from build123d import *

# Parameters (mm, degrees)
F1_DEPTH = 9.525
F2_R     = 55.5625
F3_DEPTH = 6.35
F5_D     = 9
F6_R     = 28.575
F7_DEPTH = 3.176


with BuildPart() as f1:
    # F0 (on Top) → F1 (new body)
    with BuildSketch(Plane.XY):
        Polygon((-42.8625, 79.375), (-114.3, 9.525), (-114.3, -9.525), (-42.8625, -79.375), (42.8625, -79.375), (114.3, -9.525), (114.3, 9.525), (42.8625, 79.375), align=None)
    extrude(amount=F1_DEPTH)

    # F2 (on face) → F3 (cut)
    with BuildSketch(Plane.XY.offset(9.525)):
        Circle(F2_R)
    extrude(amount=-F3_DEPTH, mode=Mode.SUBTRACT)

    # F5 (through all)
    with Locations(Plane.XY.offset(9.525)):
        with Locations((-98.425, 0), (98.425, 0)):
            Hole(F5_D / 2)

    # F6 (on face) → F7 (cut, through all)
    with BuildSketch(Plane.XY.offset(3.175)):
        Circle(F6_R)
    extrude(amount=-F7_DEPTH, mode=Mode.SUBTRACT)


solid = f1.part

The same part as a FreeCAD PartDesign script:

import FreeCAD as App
import Part
import Sketcher
Q = App.Units.Quantity

doc = App.newDocument("Part")
body = doc.addObject("PartDesign::Body", "Body")

sketch1 = body.newObject("Sketcher::SketchObject", "Sketch")
sketch1.AttachmentSupport = (doc.getObject("XY_Plane"), [""])
sketch1.MapMode = "FlatFace"
sketch1.addGeometry([
    Part.LineSegment(App.Vector(-43, 79, 0), App.Vector(-114, 10, 0)),
    Part.LineSegment(App.Vector(-114, 10, 0), App.Vector(-114, -10, 0)),
    Part.LineSegment(App.Vector(-114, -10, 0), App.Vector(-43, -79, 0)),
    Part.LineSegment(App.Vector(-43, -79, 0), App.Vector(43, -79, 0)),
    Part.LineSegment(App.Vector(43, -79, 0), App.Vector(114, -10, 0)),
    Part.LineSegment(App.Vector(114, -10, 0), App.Vector(114, 10, 0)),
    Part.LineSegment(App.Vector(114, 10, 0), App.Vector(43, 79, 0)),
    Part.LineSegment(App.Vector(43, 79, 0), App.Vector(-43, 79, 0)),
], False)
sketch1.addConstraint([
    Sketcher.Constraint("Coincident", 0, 2, 1, 1),
    Sketcher.Constraint("Coincident", 1, 2, 2, 1),
    Sketcher.Constraint("Coincident", 2, 2, 3, 1),
    Sketcher.Constraint("Coincident", 3, 2, 4, 1),
    Sketcher.Constraint("Coincident", 4, 2, 5, 1),
    Sketcher.Constraint("Coincident", 5, 2, 6, 1),
    Sketcher.Constraint("Coincident", 6, 2, 7, 1),
    Sketcher.Constraint("Coincident", 7, 2, 0, 1),
    Sketcher.Constraint("Vertical", 1),
    Sketcher.Constraint("Horizontal", 3),
    Sketcher.Constraint("Vertical", 5),
    Sketcher.Constraint("Horizontal", 7),
    Sketcher.Constraint("Symmetric", 0, 2, 4, 2, -1, 1),
    Sketcher.Constraint("Symmetric", 2, 2, 6, 2, -1, 1),
    Sketcher.Constraint("Parallel", 0, 4),
    Sketcher.Constraint("Parallel", 2, 6),
    Sketcher.Constraint("Horizontal", 1, 2, 4, 2),
    Sketcher.Constraint("Vertical", 3, 2, 6, 2),
    Sketcher.Constraint("DistanceX", 1, 2, 4, 2, Q("9 in")),
    Sketcher.Constraint("DistanceY", 1, 2, 1, 1, Q("0.75 in")),
    Sketcher.Constraint("DistanceY", 2, 2, 0, 2, Q("3.5 in")),
    Sketcher.Constraint("DistanceX", 3, 1, 3, 2, Q("3.375 in")),
])
pad1 = body.newObject("PartDesign::Pad", "Pad")
pad1.Profile = sketch1
pad1.Length = Q("0.375 in")

sketch2 = body.newObject("Sketcher::SketchObject", "Sketch001")
sketch2.AttachmentSupport = (doc.getObject("XY_Plane"), [""])
sketch2.MapMode = "FlatFace"
sketch2.AttachmentOffset = App.Placement(App.Vector(0, 0, 0.375 * 25.4), App.Rotation())
sketch2.addGeometry(Part.Circle(App.Vector(0, 0, 0), App.Vector(0, 0, 1), 56), False)
sketch2.addConstraint([
    Sketcher.Constraint("Coincident", 0, 3, -1, 1),
    Sketcher.Constraint("Diameter", 0, Q("4.375 in")),
])
pocket1 = body.newObject("PartDesign::Pocket", "Pocket")
pocket1.Profile = sketch2
pocket1.Length = Q("0.25 in")

sketch3 = body.newObject("Sketcher::SketchObject", "Sketch002")
sketch3.AttachmentSupport = (doc.getObject("XY_Plane"), [""])
sketch3.MapMode = "FlatFace"
sketch3.AttachmentOffset = App.Placement(App.Vector(0, 0, 0.375 * 25.4), App.Rotation())
sketch3.addGeometry([
    Part.Circle(App.Vector(-98.4, 0, 0), App.Vector(0, 0, 1), 4.5),
    Part.Circle(App.Vector(98.4, 0, 0), App.Vector(0, 0, 1), 4.5),
], False)
sketch3.addConstraint([
    Sketcher.Constraint("Equal", 0, 1),
    Sketcher.Constraint("Symmetric", 0, 3, 1, 3, -1, 1),
    Sketcher.Constraint("PointOnObject", 0, 3, -1),
    Sketcher.Constraint("Diameter", 0, Q("9 mm")),
    Sketcher.Constraint("DistanceX", 0, 3, 1, 3, Q("7.75 in")),
])
doc.recompute()
hole = body.newObject("PartDesign::Hole", "Hole")
hole.Profile = sketch3
hole.ThreadType = "None"
hole.Diameter = 9
hole.DepthType = "ThroughAll"

sketch4 = body.newObject("Sketcher::SketchObject", "Sketch003")
sketch4.AttachmentSupport = (doc.getObject("XY_Plane"), [""])
sketch4.MapMode = "FlatFace"
sketch4.AttachmentOffset = App.Placement(App.Vector(0, 0, 0.125 * 25.4), App.Rotation())
sketch4.addGeometry(Part.Circle(App.Vector(0, 0, 0), App.Vector(0, 0, 1), 29), False)
sketch4.addConstraint([
    Sketcher.Constraint("Coincident", 0, 3, -1, 1),
    Sketcher.Constraint("Diameter", 0, Q("2.25 in")),
])
pocket2 = body.newObject("PartDesign::Pocket", "Pocket001")
pocket2.Profile = sketch4
pocket2.Type = "ThroughAll"

doc.recompute()
